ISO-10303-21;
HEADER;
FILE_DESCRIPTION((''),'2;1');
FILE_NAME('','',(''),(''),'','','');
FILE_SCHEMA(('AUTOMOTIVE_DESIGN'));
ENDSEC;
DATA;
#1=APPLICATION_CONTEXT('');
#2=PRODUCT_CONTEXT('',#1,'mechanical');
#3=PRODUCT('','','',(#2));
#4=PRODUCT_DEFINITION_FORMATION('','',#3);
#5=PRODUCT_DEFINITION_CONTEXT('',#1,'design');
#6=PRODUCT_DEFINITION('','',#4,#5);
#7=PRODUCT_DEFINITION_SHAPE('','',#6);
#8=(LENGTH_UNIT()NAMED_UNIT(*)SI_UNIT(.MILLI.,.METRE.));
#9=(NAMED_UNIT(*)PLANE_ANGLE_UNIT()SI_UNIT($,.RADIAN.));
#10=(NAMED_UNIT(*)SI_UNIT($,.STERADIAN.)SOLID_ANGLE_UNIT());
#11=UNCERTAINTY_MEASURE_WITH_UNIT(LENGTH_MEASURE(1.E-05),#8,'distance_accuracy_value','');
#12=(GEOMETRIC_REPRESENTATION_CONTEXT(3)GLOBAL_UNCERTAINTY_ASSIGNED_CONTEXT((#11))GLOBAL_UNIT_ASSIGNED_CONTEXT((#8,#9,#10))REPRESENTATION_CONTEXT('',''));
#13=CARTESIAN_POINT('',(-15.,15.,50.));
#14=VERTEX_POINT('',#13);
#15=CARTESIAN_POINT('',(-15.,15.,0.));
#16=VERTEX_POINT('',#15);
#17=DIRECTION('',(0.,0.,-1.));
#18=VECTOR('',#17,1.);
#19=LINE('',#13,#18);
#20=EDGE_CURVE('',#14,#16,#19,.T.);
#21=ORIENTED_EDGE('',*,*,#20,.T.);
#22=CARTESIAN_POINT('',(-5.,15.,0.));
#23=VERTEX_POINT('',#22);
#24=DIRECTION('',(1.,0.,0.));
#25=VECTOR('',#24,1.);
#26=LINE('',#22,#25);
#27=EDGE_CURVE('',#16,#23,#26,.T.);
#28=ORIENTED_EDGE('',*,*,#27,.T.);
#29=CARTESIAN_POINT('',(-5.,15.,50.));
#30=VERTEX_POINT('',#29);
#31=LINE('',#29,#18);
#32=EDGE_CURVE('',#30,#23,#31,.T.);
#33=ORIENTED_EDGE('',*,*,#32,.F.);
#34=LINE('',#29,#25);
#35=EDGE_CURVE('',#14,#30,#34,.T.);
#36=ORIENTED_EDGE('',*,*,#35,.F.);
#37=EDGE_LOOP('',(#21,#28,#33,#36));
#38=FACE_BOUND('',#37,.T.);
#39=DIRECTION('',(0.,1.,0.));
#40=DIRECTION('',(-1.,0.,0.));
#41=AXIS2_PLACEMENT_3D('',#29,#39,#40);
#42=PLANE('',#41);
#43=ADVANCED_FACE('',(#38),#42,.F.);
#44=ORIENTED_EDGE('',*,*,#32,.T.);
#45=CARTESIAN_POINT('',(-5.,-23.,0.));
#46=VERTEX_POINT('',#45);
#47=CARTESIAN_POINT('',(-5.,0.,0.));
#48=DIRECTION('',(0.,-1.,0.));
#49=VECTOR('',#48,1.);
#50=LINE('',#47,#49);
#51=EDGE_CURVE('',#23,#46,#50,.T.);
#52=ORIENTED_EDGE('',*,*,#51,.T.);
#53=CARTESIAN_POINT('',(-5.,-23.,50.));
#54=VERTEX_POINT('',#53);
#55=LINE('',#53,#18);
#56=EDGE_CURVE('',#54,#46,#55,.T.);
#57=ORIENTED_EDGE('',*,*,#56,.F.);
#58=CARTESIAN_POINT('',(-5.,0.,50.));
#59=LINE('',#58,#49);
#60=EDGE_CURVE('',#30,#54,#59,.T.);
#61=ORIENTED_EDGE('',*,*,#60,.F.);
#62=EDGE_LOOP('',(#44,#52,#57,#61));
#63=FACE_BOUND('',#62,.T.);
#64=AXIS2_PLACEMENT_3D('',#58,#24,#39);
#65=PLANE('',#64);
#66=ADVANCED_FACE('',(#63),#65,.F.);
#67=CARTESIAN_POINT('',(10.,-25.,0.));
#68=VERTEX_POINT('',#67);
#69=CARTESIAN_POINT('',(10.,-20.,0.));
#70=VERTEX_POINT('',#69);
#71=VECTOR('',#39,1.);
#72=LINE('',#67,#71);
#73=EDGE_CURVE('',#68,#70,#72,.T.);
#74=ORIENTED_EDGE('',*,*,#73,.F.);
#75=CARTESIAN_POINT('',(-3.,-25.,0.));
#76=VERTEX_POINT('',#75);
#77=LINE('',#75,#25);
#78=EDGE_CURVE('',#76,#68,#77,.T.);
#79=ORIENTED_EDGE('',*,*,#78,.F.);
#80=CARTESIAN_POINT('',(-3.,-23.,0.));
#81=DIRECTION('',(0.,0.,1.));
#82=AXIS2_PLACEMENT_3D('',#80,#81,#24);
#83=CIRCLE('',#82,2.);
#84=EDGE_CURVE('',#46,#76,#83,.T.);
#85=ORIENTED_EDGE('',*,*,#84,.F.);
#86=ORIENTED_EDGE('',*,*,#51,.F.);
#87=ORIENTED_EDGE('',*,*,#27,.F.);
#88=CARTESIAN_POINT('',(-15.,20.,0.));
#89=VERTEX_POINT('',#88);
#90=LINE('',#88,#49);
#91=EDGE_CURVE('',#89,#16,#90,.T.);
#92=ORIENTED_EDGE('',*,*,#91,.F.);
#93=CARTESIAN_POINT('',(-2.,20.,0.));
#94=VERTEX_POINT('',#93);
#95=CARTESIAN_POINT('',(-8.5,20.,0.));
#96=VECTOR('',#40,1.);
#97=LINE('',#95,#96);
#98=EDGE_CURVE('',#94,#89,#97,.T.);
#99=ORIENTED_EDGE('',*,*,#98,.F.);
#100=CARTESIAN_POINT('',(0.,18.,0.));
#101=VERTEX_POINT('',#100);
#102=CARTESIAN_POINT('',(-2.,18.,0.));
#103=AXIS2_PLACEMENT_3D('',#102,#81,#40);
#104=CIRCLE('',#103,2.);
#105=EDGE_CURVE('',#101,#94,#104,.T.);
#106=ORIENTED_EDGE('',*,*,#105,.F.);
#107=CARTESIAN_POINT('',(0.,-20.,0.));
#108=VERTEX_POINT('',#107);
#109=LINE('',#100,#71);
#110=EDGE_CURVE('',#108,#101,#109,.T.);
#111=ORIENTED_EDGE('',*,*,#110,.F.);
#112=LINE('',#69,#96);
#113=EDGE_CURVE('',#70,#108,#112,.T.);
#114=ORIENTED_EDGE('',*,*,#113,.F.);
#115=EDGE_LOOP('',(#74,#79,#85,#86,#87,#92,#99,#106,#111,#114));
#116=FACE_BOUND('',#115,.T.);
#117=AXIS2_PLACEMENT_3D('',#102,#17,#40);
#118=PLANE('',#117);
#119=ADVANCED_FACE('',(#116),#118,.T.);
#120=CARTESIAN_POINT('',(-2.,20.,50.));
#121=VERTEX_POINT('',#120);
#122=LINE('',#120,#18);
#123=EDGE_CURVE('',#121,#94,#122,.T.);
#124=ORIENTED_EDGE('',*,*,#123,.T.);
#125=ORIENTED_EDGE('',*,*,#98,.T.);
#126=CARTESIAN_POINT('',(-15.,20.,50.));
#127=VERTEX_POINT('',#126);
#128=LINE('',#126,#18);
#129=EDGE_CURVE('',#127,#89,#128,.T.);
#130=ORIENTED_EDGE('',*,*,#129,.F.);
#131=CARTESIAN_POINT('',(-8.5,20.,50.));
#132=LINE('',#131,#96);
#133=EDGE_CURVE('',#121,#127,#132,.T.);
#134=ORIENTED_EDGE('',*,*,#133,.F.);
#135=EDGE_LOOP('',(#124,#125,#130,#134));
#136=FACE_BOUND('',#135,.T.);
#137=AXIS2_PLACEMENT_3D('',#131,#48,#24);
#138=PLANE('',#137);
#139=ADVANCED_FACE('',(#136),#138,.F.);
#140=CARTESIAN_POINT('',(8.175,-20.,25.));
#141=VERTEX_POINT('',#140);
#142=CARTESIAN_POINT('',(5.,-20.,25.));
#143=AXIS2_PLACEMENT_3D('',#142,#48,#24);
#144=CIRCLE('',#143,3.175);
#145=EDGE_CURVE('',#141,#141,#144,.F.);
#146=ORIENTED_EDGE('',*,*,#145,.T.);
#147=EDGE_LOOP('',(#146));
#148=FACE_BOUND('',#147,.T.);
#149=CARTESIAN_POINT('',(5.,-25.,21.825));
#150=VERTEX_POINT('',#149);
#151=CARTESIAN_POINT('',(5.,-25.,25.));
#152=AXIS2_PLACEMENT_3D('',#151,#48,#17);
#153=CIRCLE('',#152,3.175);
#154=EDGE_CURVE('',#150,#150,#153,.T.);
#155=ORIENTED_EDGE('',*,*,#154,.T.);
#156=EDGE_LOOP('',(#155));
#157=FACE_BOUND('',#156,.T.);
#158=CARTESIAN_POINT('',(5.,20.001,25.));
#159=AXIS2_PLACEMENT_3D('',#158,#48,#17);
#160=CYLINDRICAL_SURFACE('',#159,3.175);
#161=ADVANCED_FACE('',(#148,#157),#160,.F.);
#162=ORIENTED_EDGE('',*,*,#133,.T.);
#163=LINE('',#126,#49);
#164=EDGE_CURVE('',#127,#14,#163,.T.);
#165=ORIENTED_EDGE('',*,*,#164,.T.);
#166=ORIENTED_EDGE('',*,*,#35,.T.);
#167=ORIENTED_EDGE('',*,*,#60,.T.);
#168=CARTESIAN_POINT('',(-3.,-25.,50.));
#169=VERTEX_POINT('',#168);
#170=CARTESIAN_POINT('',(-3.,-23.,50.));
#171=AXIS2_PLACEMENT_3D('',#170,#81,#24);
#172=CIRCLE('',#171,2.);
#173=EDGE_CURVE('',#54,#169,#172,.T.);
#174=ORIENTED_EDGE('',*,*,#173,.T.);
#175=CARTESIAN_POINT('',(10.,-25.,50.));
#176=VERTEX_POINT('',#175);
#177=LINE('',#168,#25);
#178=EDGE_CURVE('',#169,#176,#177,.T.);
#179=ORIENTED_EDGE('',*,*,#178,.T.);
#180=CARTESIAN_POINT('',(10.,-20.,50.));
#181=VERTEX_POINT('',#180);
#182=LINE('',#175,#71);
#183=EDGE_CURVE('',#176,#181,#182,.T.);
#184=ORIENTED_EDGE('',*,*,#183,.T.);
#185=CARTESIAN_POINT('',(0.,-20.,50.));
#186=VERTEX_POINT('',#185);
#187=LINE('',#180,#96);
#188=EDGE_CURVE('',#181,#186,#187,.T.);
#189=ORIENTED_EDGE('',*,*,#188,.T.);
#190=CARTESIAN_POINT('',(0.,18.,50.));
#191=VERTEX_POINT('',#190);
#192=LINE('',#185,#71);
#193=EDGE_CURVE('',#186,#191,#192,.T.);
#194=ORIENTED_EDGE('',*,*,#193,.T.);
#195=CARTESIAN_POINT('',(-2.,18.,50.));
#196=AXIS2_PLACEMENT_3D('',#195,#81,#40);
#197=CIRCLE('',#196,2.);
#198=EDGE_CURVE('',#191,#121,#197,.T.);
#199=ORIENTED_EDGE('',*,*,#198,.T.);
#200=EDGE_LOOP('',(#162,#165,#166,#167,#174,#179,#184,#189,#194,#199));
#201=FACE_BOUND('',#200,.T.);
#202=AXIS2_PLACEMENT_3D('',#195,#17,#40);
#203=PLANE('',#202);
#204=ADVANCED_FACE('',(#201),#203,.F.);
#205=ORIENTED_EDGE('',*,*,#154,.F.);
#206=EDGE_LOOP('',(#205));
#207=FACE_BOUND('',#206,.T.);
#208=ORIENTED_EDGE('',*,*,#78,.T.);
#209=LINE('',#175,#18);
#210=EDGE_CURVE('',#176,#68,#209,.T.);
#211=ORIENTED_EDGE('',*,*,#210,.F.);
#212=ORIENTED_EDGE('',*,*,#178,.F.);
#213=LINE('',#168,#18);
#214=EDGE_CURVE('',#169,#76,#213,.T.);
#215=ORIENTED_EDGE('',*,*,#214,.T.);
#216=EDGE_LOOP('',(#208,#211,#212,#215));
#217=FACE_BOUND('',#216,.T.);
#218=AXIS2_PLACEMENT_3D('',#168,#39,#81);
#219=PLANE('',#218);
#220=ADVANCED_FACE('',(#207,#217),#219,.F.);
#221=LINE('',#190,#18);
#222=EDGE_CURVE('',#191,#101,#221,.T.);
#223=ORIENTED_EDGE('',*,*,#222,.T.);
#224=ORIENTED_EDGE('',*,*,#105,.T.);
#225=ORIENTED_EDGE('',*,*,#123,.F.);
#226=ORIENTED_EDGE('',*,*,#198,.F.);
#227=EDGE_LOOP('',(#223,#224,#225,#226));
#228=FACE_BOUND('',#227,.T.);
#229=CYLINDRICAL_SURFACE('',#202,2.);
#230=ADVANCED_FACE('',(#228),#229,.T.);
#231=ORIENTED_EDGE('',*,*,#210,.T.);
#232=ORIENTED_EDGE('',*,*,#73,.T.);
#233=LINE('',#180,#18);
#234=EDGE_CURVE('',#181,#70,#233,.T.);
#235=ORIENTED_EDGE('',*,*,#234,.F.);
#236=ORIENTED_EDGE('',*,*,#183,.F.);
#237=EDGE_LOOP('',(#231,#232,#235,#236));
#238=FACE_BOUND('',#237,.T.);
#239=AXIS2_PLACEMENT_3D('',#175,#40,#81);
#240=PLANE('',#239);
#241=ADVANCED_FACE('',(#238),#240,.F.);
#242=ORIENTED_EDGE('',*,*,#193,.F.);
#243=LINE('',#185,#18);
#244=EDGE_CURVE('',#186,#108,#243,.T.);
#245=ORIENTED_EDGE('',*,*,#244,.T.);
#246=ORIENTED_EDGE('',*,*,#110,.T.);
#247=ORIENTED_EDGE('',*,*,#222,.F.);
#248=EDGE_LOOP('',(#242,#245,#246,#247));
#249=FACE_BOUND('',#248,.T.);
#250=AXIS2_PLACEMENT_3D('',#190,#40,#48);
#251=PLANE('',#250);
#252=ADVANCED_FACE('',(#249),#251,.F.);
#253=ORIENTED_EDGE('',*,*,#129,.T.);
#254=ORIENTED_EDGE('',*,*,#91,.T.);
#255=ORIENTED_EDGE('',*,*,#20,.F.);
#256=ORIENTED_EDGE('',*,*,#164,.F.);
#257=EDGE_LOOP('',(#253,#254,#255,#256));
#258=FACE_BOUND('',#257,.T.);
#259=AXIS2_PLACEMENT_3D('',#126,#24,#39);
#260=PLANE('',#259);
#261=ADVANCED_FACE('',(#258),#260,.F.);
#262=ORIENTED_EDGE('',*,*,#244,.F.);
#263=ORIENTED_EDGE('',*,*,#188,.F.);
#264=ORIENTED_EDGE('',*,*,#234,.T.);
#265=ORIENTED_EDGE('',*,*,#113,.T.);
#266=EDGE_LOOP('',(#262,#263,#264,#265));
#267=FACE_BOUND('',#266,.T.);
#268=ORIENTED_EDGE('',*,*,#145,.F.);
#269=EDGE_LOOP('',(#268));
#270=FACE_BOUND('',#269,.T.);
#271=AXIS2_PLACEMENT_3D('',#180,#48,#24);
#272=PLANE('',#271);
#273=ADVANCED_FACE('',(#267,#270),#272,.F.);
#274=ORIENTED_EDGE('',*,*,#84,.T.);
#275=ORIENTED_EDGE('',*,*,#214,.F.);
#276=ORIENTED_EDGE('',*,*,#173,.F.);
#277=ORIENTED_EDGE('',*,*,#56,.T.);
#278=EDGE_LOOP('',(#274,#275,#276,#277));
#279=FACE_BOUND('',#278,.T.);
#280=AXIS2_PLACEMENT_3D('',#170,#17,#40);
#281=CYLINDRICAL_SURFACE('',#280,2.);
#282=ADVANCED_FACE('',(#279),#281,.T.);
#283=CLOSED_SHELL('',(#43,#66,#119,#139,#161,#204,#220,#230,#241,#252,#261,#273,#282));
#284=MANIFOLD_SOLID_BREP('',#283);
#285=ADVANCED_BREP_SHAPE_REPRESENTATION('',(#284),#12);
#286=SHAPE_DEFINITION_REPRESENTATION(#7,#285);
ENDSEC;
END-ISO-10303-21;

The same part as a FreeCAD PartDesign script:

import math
import FreeCAD as App
import Part
import Sketcher
from FreeCAD import Vector
Q = App.Units.Quantity

doc = App.newDocument("Part")
body = doc.addObject("PartDesign::Body", "Body")

sketch1 = body.newObject("Sketcher::SketchObject", "Sketch")
sketch1.AttachmentSupport = (doc.getObject("XY_Plane"), [""])
sketch1.MapMode = "FlatFace"
sketch1.addGeometry([
    Part.ArcOfCircle(Part.Circle(Vector(-2, 18, 0), Vector(0, 0, 1), 2), math.radians(0), math.radians(90)),
    Part.LineSegment(Vector(-2, 20, 0), Vector(-15, 20, 0)),
    Part.LineSegment(Vector(-15, 20, 0), Vector(-15, 15, 0)),
    Part.LineSegment(Vector(-15, 15, 0), Vector(-5, 15, 0)),
    Part.LineSegment(Vector(-5, 15, 0), Vector(-5, -23, 0)),
    Part.ArcOfCircle(Part.Circle(Vector(-3, -23, 0), Vector(0, 0, 1), 2), math.radians(-180), math.radians(-90)),
    Part.LineSegment(Vector(-3, -25, 0), Vector(10, -25, 0)),
    Part.LineSegment(Vector(10, -25, 0), Vector(10, -20, 0)),
    Part.LineSegment(Vector(10, -20, 0), Vector(0, -20, 0)),
    Part.LineSegment(Vector(0, -20, 0), Vector(0, 18, 0)),
], False)
sketch1.addConstraint([
    Sketcher.Constraint("Tangent", 0, 2, 1, 1),
    Sketcher.Constraint("Coincident", 1, 2, 2, 1),
    Sketcher.Constraint("Coincident", 2, 2, 3, 1),
    Sketcher.Constraint("Coincident", 3, 2, 4, 1),
    Sketcher.Constraint("Tangent", 4, 2, 5, 1),
    Sketcher.Constraint("Tangent", 5, 2, 6, 1),
    Sketcher.Constraint("Coincident", 6, 2, 7, 1),
    Sketcher.Constraint("Coincident", 7, 2, 8, 1),
    Sketcher.Constraint("Coincident", 8, 2, 9, 1),
    Sketcher.Constraint("Tangent", 9, 2, 0, 1),
    Sketcher.Constraint("Horizontal", 1),
    Sketcher.Constraint("Vertical", 2),
    Sketcher.Constraint("Horizontal", 3),
    Sketcher.Constraint("Vertical", 4),
    Sketcher.Constraint("Horizontal", 6),
    Sketcher.Constraint("Vertical", 7),
    Sketcher.Constraint("Horizontal", 8),
    Sketcher.Constraint("Vertical", 9),
    Sketcher.Constraint("Equal", 0, 5),
    Sketcher.Constraint("PointOnObject", 8, 2, -2),
    Sketcher.Constraint("Equal", 1, 6),
    Sketcher.Constraint("Equal", 2, 7),
    Sketcher.Constraint("Radius", 0, Q("2 mm")),
    Sketcher.Constraint("DistanceX", 1, 2, 1, 1, Q("13 mm")),
    Sketcher.Constraint("DistanceX", 3, 1, 3, 2, Q("10 mm")),
    Sketcher.Constraint("DistanceY", 2, 2, 2, 1, Q("5 mm")),
    Sketcher.Constraint("DistanceY", 4, 2, 4, 1, Q("38 mm")),
    Sketcher.Constraint("DistanceY", -1, 1, 0, 3, Q("18 mm")),
])
pad1 = body.newObject("PartDesign::Pad", "Pad")
pad1.Profile = sketch1
pad1.Length = 50

sketch2 = body.newObject("Sketcher::SketchObject", "Sketch001")
sketch2.AttachmentSupport = (doc.getObject("XZ_Plane"), [""])
sketch2.MapMode = "FlatFace"
sketch2.AttachmentOffset = App.Placement(Vector(0, 0, 25), App.Rotation())
sketch2.addGeometry(Part.Circle(Vector(5, 25, 0), Vector(0, 0, 1), 3.2), False)
sketch2.addConstraint([
    Sketcher.Constraint("Diameter", 0, Q("6.35 mm")),
    Sketcher.Constraint("DistanceX", -1, 1, 0, 3, Q("5 mm")),
    Sketcher.Constraint("DistanceY", -1, 1, 0, 3, Q("25 mm")),
])
pocket1 = body.newObject("PartDesign::Pocket", "Pocket")
pocket1.Profile = sketch2
pocket1.Type = "UpToFirst"

doc.recompute()
